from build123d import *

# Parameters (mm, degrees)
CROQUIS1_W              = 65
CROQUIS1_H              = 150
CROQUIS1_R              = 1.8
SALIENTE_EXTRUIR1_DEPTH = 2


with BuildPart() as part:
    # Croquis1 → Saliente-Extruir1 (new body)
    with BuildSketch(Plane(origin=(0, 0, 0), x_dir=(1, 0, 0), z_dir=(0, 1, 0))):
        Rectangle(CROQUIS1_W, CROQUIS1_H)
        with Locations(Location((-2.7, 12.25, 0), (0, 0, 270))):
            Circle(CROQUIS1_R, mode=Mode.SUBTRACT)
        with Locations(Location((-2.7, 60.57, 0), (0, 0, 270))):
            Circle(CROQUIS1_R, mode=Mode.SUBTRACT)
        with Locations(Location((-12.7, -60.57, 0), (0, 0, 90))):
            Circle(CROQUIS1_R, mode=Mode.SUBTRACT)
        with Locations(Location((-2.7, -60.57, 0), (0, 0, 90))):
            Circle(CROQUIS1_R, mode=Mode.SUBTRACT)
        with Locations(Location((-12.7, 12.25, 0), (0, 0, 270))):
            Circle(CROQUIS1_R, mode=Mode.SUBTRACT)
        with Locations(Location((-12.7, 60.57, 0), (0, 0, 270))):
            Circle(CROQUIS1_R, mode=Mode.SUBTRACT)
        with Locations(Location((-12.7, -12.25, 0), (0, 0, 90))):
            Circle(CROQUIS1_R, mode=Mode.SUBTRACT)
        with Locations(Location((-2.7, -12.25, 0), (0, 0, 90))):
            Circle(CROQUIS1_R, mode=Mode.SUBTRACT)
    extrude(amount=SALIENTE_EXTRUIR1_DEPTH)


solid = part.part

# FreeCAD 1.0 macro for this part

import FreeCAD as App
import Part
import Sketcher

V = App.Vector
Q = App.Units.Quantity


def add_polygon(sketch, points):
    """Adds a closed chain of lines whose ends are joined by coincident constraints."""
    first, n = sketch.GeometryCount, len(points)
    for a, b in zip(points, points[1:] + points[:1]):
        sketch.addGeometry(Part.LineSegment(App.Vector(*a, 0), App.Vector(*b, 0)), False)
    for i in range(n):
        sketch.addConstraint(Sketcher.Constraint("Coincident", first + i, 2, first + (i + 1) % n, 1))

doc = App.newDocument("Part")
body = doc.addObject("PartDesign::Body", "Body")

# Sketch on XZ plane
sketch1 = doc.addObject("Sketcher::SketchObject", "Sketch")
body.addObject(sketch1)
sketch1.AttachmentSupport = (doc.XZ_Plane, [""])
sketch1.MapMode = "FlatFace"
add_polygon(sketch1, [(-32.5, -75), (-32.5, 75), (32.5, 75), (32.5, -75)])  # lines 0-3
sketch1.addGeometry(Part.Circle(V(-12.7, 60.6, 0), V(0, 0, 1), 1.8), False)  # 4
sketch1.addGeometry(Part.Circle(V(-12.7, 12.2, 0), V(0, 0, 1), 1.8), False)  # 5
sketch1.addGeometry(Part.Circle(V(-2.7, 60.6, 0), V(0, 0, 1), 1.8), False)  # 6
sketch1.addGeometry(Part.Circle(V(-2.7, 12.2, 0), V(0, 0, 1), 1.8), False)  # 7
sketch1.addGeometry(Part.Circle(V(-12.7, -12.2, 0), V(0, 0, 1), 1.8), False)  # 8
sketch1.addGeometry(Part.Circle(V(-12.7, -60.6, 0), V(0, 0, 1), 1.8), False)  # 9
sketch1.addGeometry(Part.Circle(V(-2.7, -12.2, 0), V(0, 0, 1), 1.8), False)  # 10
sketch1.addGeometry(Part.Circle(V(-2.7, -60.6, 0), V(0, 0, 1), 1.8), False)  # 11
sketch1.addConstraint([
    Sketcher.Constraint("Vertical", 0),
    Sketcher.Constraint("Horizontal", 1),
    Sketcher.Constraint("Vertical", 2),
    Sketcher.Constraint("Horizontal", 3),
    Sketcher.Constraint("Equal", 4, 5),
    Sketcher.Constraint("Equal", 5, 6),
    Sketcher.Constraint("Equal", 6, 7),
    Sketcher.Constraint("Equal", 7, 8),
    Sketcher.Constraint("Equal", 8, 9),
    Sketcher.Constraint("Equal", 9, 10),
    Sketcher.Constraint("Equal", 10, 11),
    Sketcher.Constraint("Symmetric", 0, 2, 2, 2, -1, 1),
    Sketcher.Constraint("Symmetric", 5, 3, 8, 3, -1),
    Sketcher.Constraint("Symmetric", 4, 3, 9, 3, -1),
    Sketcher.Constraint("Symmetric", 7, 3, 10, 3, -1),
    Sketcher.Constraint("Symmetric", 6, 3, 11, 3, -1),
    Sketcher.Constraint("Horizontal", 4, 3, 6, 3),
    Sketcher.Constraint("Horizontal", 5, 3, 7, 3),
    Sketcher.Constraint("Vertical", 4, 3, 5, 3),
    Sketcher.Constraint("Vertical", 6, 3, 7, 3),
    Sketcher.Constraint("Diameter", 4, Q("3.6 mm")),
    Sketcher.Constraint("DistanceX", 1, 1, 1, 2, Q("65 mm")),
    Sketcher.Constraint("DistanceY", 0, 1, 0, 2, Q("150 mm")),
    Sketcher.Constraint("DistanceX", 4, 3, 6, 3, Q("10 mm")),
    Sketcher.Constraint("DistanceX", 4, 3, -1, 1, Q("12.7 mm")),
    Sketcher.Constraint("DistanceY", 8, 3, 5, 3, Q("24.5 mm")),
    Sketcher.Constraint("DistanceY", -1, 1, 4, 3, Q("60.57 mm")),
])
pad1 = doc.addObject("PartDesign::Pad", "Pad")
body.addObject(pad1)
pad1.Profile = sketch1
pad1.Length = 2
pad1.Reversed = True

doc.recompute()
